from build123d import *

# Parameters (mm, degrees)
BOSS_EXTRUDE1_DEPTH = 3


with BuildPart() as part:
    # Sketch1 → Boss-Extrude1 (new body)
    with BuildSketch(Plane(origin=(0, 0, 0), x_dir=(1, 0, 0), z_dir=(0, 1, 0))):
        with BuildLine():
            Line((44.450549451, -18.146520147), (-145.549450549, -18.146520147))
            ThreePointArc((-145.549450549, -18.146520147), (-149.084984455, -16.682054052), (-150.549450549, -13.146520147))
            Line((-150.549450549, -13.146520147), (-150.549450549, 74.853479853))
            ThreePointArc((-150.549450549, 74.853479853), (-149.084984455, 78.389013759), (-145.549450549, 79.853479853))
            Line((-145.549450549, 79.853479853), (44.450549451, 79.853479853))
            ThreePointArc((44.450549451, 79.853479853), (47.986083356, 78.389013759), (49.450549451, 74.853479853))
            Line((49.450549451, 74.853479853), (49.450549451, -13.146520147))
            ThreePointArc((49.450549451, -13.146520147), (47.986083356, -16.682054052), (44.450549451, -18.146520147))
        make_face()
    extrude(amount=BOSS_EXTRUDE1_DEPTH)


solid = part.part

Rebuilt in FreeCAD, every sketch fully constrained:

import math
import FreeCAD as App
import Part
import Sketcher
from FreeCAD import Vector

doc = App.newDocument("Part")
body = doc.addObject("PartDesign::Body", "Body")

sketch1 = body.newObject("Sketcher::SketchObject", "Sketch")
sketch1.AttachmentSupport = (doc.getObject("XZ_Plane"), [""])
sketch1.MapMode = "FlatFace"
sketch1.addGeometry([
    Part.LineSegment(Vector(-145.549451, 18.14652, 0), Vector(44.450549, 18.14652, 0)),
    Part.ArcOfCircle(Part.Circle(Vector(44.450549, 13.14652, 0), Vector(0, 0, 1), 5), math.radians(0), math.radians(90)),
    Part.LineSegment(Vector(49.450549, 13.14652, 0), Vector(49.450549, -74.85348, 0)),
    Part.ArcOfCircle(Part.Circle(Vector(44.450549, -74.85348, 0), Vector(0, 0, 1), 5), math.radians(-90), math.radians(0)),
    Part.LineSegment(Vector(44.450549, -79.85348, 0), Vector(-145.549451, -79.85348, 0)),
    Part.ArcOfCircle(Part.Circle(Vector(-145.549451, -74.85348, 0), Vector(0, 0, 1), 5), math.radians(180), math.radians(270)),
    Part.LineSegment(Vector(-150.549451, -74.85348, 0), Vector(-150.549451, 13.14652, 0)),
    Part.ArcOfCircle(Part.Circle(Vector(-145.549451, 13.14652, 0), Vector(0, 0, 1), 5), math.radians(90), math.radians(180)),
], False)
sketch1.addConstraint([
    Sketcher.Constraint("Tangent", 0, 2, 1, 2),
    Sketcher.Constraint("Tangent", 1, 1, 2, 1),
    Sketcher.Constraint("Tangent", 2, 2, 3, 2),
    Sketcher.Constraint("Tangent", 3, 1, 4, 1),
    Sketcher.Constraint("Tangent", 4, 2, 5, 2),
    Sketcher.Constraint("Tangent", 5, 1, 6, 1),
    Sketcher.Constraint("Tangent", 6, 2, 7, 2),
    Sketcher.Constraint("Tangent", 7, 1, 0, 1),
    Sketcher.Constraint("Horizontal", 0),
    Sketcher.Constraint("Vertical", 2),
    Sketcher.Constraint("Horizontal", 4),
    Sketcher.Constraint("Vertical", 6),
    Sketcher.Constraint("Equal", 1, 3),
    Sketcher.Constraint("Equal", 3, 5),
    Sketcher.Constraint("Equal", 5, 7),
    Sketcher.Constraint("Radius", 1, 5.0),
    Sketcher.Constraint("DistanceX", 0, 1, 0, 2, 190.0),
    Sketcher.Constraint("DistanceY", 2, 2, 2, 1, 88.0),
    Sketcher.Constraint("DistanceX", -1, 1, 1, 3, 44.450549),
    Sketcher.Constraint("DistanceY", -1, 1, 1, 3, 13.14652),
])
pad1 = body.newObject("PartDesign::Pad", "Pad")
pad1.Profile = sketch1
pad1.Length = 3
pad1.Reversed = True

doc.recompute()
